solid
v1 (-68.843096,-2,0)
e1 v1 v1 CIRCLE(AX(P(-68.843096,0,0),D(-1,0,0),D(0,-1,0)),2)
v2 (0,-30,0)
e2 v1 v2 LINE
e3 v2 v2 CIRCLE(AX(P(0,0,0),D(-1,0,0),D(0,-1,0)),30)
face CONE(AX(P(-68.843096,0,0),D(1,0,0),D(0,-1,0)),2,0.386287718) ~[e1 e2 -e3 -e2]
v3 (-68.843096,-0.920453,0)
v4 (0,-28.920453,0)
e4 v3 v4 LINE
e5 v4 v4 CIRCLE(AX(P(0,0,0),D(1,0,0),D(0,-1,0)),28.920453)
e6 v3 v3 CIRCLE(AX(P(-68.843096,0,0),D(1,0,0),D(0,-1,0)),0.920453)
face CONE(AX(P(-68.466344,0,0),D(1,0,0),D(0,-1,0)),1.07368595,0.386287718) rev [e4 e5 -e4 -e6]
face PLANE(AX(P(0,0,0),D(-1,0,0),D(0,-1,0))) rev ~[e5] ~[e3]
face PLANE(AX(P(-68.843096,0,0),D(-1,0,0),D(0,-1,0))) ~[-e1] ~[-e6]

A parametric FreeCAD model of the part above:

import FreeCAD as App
import Part
import Sketcher
from FreeCAD import Vector


def faces_at(feature, points):
    """Names of the faces that lie closest to the given points."""
    faces = feature.Shape.Faces
    near = lambda p: min(range(len(faces)), key=lambda i: faces[i].distToShape(Part.Vertex(*p))[0])
    return sorted({f"Face{near(p) + 1}" for p in points})

doc = App.newDocument("Part")
body = doc.addObject("PartDesign::Body", "Body")

# Sketch on XY plane
sketch1 = body.newObject("Sketcher::SketchObject", "Sketch")
sketch1.AttachmentSupport = (doc.getObject("XY_Plane"), [""])
sketch1.MapMode = "FlatFace"
sketch1.addGeometry([
    Part.LineSegment(Vector(-68.8, -2, 0), Vector(0, -30, 0)),
    Part.LineSegment(Vector(0, -30, 0), Vector(0, 0, 0)),
    Part.LineSegment(Vector(0, 0, 0), Vector(-68.8, 0, 0)),
    Part.LineSegment(Vector(-68.8, 0, 0), Vector(-68.8, -2, 0)),
], False)
sketch1.addConstraint([
    Sketcher.Constraint("Coincident", 0, 2, 1, 1),
    Sketcher.Constraint("Coincident", 1, 2, 2, 1),
    Sketcher.Constraint("Coincident", 2, 2, 3, 1),
    Sketcher.Constraint("Coincident", 3, 2, 0, 1),
    Sketcher.Constraint("Vertical", 1),
    Sketcher.Constraint("Horizontal", 2),
    Sketcher.Constraint("Vertical", 3),
    Sketcher.Constraint("Coincident", 1, 2, -1, 1),
    Sketcher.Constraint("DistanceY", 1, 1, 1, 2, 30.0),
    Sketcher.Constraint("DistanceY", 3, 2, 3, 1, 2.0),
    Sketcher.Constraint("Distance", 0, 74.319391),
])
revolution = body.newObject("PartDesign::Revolution", "Revolution")
revolution.Profile = sketch1
revolution.ReferenceAxis = (sketch1, ["H_Axis"])
revolution.Angle = 360
doc.recompute()

thickness = body.newObject("PartDesign::Thickness", "Thickness")
thickness.Base = (revolution, faces_at(revolution, [(-68.843, 0, 0), (0, 0, 0)]))
thickness.Value = 1
thickness.Reversed = True
thickness.Join = "Arc"

doc.recompute()
